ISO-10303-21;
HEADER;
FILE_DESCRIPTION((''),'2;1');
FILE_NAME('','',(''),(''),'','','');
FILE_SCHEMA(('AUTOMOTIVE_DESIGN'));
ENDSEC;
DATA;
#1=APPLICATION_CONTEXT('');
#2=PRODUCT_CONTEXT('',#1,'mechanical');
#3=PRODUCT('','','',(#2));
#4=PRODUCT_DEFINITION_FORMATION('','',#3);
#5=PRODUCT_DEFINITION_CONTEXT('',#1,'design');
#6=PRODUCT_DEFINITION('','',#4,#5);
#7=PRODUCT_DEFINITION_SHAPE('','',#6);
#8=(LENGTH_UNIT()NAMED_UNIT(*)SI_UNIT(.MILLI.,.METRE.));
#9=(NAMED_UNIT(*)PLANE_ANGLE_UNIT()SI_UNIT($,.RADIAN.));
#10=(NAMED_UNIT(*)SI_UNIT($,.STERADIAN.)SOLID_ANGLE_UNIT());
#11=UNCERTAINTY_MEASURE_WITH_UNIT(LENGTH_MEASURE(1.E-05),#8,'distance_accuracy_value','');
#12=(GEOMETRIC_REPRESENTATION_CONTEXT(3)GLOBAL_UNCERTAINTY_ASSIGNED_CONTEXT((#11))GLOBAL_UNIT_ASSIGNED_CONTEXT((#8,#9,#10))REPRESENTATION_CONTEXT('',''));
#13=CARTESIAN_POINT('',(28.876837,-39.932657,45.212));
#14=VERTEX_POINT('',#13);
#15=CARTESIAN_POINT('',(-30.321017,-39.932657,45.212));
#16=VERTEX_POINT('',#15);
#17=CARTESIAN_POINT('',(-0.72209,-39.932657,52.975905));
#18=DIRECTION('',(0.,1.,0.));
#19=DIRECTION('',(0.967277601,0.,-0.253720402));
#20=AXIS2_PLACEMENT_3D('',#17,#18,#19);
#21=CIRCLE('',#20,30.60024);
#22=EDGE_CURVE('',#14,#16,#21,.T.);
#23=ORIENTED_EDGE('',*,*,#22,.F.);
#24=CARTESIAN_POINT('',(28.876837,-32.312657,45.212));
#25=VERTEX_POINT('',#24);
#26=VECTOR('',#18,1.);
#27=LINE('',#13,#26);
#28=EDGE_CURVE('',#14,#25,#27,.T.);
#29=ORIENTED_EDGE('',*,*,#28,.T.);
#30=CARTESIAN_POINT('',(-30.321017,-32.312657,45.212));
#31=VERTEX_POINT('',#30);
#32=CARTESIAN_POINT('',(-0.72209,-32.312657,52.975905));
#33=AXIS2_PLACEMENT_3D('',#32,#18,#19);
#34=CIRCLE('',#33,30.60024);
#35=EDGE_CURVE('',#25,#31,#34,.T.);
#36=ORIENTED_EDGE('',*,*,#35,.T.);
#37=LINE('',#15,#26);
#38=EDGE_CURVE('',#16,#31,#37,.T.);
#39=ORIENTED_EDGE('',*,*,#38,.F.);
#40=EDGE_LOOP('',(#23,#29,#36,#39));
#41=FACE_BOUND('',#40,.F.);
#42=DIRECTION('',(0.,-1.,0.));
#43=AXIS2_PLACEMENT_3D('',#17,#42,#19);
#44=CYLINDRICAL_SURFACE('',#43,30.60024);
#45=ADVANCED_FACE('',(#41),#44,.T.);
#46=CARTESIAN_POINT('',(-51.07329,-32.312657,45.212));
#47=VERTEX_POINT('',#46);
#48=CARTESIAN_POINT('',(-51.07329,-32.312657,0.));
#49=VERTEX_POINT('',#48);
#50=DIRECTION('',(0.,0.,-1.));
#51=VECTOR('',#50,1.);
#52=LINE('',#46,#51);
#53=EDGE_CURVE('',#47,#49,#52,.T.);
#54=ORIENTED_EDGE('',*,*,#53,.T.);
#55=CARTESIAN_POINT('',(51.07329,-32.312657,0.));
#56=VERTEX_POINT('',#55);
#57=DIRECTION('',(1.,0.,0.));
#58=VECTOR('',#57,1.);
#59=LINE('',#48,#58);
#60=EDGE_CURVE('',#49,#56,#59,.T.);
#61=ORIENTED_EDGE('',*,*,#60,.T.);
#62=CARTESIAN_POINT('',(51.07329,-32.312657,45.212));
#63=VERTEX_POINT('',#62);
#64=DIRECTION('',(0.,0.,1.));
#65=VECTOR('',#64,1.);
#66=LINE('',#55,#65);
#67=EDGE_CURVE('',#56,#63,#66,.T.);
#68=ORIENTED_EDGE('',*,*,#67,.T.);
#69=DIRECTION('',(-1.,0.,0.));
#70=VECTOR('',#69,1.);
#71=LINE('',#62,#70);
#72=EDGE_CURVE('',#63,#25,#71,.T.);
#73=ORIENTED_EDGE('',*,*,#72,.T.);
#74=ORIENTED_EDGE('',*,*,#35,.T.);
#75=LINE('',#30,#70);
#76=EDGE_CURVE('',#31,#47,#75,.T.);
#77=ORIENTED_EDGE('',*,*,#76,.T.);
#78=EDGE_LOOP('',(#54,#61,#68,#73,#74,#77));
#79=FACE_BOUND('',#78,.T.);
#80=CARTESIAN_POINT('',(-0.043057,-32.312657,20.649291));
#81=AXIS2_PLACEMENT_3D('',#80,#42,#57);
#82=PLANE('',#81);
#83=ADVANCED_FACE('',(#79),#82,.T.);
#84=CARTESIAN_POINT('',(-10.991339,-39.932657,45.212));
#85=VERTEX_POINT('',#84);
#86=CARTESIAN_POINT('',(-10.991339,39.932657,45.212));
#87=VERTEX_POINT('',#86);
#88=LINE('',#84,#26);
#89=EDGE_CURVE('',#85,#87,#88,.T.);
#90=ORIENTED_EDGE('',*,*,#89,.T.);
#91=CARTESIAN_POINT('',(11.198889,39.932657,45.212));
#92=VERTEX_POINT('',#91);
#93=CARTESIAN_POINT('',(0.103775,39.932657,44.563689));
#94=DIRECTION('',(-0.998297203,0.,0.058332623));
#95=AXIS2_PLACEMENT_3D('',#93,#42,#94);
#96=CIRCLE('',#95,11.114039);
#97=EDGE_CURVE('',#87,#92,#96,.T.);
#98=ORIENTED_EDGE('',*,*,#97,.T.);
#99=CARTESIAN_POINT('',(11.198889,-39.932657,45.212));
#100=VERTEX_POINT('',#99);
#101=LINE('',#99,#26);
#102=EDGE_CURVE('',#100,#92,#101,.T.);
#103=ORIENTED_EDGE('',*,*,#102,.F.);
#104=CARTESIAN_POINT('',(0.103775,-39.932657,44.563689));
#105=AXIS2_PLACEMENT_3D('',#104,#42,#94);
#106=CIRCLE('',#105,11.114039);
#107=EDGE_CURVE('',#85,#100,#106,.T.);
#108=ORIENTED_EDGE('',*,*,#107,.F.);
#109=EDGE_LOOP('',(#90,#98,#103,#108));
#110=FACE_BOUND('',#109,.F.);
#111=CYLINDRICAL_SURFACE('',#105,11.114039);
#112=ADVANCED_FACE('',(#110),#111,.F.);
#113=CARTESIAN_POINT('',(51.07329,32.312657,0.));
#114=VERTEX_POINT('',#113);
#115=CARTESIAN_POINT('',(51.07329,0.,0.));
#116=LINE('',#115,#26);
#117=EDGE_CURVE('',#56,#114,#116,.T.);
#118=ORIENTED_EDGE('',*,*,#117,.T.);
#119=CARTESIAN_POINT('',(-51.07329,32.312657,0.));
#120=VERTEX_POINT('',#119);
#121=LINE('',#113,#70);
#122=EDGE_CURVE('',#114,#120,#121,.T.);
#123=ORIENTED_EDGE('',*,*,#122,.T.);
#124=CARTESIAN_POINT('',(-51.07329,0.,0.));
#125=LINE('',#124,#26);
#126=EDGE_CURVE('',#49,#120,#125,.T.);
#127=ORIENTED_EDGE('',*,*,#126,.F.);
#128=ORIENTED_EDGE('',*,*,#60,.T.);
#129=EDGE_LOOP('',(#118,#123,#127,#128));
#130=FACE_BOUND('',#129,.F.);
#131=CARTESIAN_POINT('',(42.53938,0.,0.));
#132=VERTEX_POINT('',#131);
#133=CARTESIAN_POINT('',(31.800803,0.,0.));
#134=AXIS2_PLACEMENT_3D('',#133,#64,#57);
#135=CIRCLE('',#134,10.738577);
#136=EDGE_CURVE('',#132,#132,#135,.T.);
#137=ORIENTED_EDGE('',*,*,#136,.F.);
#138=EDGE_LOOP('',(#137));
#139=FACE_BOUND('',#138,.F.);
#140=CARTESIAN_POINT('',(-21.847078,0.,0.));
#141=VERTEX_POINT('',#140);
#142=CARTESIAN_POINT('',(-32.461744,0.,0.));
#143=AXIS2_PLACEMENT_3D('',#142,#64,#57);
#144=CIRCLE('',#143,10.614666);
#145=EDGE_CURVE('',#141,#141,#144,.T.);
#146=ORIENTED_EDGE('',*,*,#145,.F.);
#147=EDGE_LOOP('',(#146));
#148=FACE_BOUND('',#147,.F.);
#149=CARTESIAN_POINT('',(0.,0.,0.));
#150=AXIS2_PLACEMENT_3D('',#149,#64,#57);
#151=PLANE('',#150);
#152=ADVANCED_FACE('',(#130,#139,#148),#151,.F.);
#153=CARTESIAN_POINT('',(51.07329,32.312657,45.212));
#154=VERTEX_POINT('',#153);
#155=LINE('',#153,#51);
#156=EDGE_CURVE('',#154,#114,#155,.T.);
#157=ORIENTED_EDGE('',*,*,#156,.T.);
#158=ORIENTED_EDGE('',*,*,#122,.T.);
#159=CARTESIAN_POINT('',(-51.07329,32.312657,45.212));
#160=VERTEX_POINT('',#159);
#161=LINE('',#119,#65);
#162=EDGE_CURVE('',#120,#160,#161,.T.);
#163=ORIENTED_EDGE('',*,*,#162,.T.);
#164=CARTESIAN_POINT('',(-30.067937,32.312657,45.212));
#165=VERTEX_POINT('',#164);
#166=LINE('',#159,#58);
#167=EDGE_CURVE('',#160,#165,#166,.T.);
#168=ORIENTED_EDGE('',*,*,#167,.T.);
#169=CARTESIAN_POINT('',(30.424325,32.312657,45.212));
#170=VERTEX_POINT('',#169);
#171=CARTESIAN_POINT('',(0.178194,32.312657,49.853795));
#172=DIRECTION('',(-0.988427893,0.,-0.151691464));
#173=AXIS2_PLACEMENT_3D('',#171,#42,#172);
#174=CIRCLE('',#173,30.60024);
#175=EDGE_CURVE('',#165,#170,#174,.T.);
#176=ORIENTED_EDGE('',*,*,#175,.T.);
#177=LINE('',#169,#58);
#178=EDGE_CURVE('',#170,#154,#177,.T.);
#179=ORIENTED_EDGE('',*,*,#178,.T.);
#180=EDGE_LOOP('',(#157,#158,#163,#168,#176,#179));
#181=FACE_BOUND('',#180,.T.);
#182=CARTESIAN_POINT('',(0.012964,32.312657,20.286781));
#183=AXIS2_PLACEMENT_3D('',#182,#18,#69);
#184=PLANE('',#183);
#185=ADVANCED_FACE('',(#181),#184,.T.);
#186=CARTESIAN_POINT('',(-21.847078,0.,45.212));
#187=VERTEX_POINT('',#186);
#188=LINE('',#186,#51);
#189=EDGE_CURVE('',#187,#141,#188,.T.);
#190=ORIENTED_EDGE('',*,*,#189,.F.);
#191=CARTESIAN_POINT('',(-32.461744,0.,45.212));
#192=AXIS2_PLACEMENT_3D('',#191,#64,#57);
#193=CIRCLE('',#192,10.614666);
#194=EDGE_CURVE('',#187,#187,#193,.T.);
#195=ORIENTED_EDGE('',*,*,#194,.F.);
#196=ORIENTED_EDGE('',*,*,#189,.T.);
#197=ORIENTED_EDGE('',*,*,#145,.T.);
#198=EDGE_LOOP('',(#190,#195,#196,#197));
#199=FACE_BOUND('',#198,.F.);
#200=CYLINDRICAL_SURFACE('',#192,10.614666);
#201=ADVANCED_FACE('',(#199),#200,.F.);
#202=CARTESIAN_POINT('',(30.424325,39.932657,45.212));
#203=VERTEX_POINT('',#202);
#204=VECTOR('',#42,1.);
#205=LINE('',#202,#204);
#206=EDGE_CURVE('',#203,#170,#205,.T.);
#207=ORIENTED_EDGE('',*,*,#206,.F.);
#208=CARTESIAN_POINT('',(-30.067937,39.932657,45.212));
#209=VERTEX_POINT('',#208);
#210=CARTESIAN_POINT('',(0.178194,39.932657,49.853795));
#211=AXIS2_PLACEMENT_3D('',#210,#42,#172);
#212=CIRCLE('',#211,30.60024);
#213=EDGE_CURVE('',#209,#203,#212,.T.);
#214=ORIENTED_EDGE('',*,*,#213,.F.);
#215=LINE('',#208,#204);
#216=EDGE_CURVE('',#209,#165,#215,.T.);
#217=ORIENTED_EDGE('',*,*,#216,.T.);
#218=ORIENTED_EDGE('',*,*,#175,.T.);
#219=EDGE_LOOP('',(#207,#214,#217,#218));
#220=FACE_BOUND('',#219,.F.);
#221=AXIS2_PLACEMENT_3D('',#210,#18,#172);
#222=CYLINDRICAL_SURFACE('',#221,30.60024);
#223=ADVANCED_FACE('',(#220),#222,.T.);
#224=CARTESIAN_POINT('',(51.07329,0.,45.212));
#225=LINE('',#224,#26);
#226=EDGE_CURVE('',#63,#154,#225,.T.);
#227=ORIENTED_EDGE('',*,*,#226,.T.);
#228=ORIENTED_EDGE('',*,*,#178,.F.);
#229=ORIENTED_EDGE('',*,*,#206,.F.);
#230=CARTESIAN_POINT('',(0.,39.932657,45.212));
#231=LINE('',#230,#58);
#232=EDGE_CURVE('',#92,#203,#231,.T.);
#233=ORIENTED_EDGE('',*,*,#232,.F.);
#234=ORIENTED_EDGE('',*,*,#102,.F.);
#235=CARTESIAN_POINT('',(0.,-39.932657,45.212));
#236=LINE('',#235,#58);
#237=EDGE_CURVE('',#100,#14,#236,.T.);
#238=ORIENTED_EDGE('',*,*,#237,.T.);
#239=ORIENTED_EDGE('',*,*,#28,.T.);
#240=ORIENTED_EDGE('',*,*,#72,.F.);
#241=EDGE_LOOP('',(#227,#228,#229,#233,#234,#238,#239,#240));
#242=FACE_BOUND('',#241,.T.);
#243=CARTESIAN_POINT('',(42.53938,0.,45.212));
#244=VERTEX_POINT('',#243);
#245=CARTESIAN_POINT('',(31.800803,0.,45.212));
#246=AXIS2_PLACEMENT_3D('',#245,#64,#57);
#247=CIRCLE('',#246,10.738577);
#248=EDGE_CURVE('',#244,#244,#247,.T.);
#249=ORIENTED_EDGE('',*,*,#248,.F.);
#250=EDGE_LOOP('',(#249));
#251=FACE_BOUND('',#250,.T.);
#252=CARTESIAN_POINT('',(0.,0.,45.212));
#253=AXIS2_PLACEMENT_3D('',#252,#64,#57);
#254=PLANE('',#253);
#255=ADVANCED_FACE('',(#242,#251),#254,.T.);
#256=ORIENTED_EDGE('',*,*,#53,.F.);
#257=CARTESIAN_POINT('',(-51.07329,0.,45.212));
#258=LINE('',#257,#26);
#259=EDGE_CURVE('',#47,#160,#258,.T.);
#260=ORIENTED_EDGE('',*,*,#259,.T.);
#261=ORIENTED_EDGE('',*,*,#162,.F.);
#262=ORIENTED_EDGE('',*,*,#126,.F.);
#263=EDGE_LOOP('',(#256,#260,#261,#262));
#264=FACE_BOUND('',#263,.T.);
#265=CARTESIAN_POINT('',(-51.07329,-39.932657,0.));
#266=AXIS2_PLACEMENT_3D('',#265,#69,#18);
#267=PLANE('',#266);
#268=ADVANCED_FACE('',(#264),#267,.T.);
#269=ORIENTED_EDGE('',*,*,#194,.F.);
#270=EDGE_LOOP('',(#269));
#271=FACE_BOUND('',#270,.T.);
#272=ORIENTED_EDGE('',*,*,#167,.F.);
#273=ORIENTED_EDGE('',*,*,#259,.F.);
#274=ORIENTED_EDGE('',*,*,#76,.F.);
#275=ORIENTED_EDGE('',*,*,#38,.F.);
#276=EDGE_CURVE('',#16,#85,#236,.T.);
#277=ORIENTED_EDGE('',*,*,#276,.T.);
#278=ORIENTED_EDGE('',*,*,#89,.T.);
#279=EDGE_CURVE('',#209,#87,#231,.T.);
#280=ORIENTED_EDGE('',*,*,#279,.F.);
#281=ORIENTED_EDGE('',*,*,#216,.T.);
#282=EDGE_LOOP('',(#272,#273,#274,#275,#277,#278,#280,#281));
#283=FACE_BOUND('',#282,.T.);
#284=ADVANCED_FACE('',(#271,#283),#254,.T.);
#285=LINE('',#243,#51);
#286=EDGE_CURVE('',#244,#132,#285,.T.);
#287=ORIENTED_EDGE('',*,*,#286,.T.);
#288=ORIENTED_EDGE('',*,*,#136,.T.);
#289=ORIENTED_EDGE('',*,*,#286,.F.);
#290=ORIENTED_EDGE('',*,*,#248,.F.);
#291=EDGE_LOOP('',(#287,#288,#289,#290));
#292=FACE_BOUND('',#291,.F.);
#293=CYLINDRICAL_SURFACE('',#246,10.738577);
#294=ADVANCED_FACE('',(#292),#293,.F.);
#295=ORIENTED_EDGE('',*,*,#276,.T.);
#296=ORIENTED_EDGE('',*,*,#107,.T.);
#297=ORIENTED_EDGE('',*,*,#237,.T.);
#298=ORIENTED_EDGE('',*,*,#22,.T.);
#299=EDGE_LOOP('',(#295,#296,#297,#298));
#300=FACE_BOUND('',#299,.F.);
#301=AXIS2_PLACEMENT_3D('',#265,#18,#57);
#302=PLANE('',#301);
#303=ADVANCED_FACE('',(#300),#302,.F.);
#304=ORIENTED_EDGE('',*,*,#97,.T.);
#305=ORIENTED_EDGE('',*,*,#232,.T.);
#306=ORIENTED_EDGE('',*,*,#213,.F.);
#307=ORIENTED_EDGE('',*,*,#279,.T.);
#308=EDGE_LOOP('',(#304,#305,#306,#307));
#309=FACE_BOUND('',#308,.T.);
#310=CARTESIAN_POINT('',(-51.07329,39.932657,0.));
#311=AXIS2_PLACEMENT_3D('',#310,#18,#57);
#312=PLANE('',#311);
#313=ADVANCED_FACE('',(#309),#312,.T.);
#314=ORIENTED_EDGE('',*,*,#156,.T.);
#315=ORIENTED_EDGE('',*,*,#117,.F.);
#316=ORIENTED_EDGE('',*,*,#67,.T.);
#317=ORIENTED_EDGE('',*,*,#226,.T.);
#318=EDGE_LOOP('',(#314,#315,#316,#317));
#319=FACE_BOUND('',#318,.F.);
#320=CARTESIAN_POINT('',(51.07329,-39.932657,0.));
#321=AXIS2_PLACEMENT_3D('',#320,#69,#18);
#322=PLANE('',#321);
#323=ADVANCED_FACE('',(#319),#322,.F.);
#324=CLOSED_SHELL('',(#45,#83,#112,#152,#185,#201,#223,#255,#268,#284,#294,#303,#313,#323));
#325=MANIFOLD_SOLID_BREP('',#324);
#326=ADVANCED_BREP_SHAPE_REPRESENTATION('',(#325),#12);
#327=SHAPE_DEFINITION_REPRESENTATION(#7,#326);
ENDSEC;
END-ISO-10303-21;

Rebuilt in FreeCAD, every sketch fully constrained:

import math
import FreeCAD as App
import Part
import Sketcher
Q = App.Units.Quantity

doc = App.newDocument("Part")
body = doc.addObject("PartDesign::Body", "Body")

# Sketch on XY plane
sketch1 = body.newObject("Sketcher::SketchObject", "Sketch")
sketch1.AttachmentSupport = (doc.getObject("XY_Plane"), [""])
sketch1.MapMode = "FlatFace"
sketch1.addGeometry(Part.LineSegment(App.Vector(-51, 40, 0), App.Vector(-51, -40, 0)), False)
sketch1.addGeometry(Part.LineSegment(App.Vector(-51, -40, 0), App.Vector(51, -40, 0)), False)
sketch1.addGeometry(Part.LineSegment(App.Vector(51, -40, 0), App.Vector(51, 40, 0)), False)
sketch1.addGeometry(Part.LineSegment(App.Vector(51, 40, 0), App.Vector(-51, 40, 0)), False)
sketch1.addConstraint(Sketcher.Constraint("Coincident", 0, 2, 1, 1))
sketch1.addConstraint(Sketcher.Constraint("Coincident", 1, 2, 2, 1))
sketch1.addConstraint(Sketcher.Constraint("Coincident", 2, 2, 3, 1))
sketch1.addConstraint(Sketcher.Constraint("Coincident", 3, 2, 0, 1))
sketch1.addConstraint(Sketcher.Constraint("Vertical", 0))
sketch1.addConstraint(Sketcher.Constraint("Horizontal", 1))
sketch1.addConstraint(Sketcher.Constraint("Vertical", 2))
sketch1.addConstraint(Sketcher.Constraint("Horizontal", 3))
sketch1.addConstraint(Sketcher.Constraint("Symmetric", 0, 2, 2, 2, -1, 1))
sketch1.addConstraint(Sketcher.Constraint("DistanceX", 1, 1, 1, 2, Q("102.14658 mm")))
sketch1.addConstraint(Sketcher.Constraint("DistanceY", 0, 2, 0, 1, Q("79.865314 mm")))
pad1 = body.newObject("PartDesign::Pad", "Pad")
pad1.Profile = sketch1
pad1.Length = Q("1.78 in")

# Sketch on XZ plane
sketch2 = body.newObject("Sketcher::SketchObject", "Sketch001")
sketch2.AttachmentSupport = (doc.getObject("XZ_Plane"), [""])
sketch2.MapMode = "FlatFace"
sketch2.AttachmentOffset = App.Placement(App.Vector(0, 0, -39.932657), App.Rotation())
sketch2.addGeometry(Part.ArcOfCircle(Part.Circle(App.Vector(0, 50, 0), App.Vector(0, 0, 1), 31), math.radians(-171), math.radians(-9)), False)
sketch2.addGeometry(Part.LineSegment(App.Vector(30, 45, 0), App.Vector(51, 45, 0)), False)
sketch2.addGeometry(Part.LineSegment(App.Vector(51, 45, 0), App.Vector(51, 0, 0)), False)
sketch2.addGeometry(Part.LineSegment(App.Vector(51, 0, 0), App.Vector(-51, 0, 0)), False)
sketch2.addGeometry(Part.LineSegment(App.Vector(-51, 0, 0), App.Vector(-51, 45, 0)), False)
sketch2.addGeometry(Part.LineSegment(App.Vector(-51, 45, 0), App.Vector(-30, 45, 0)), False)
sketch2.addConstraint(Sketcher.Constraint("Coincident", 0, 2, 1, 1))
sketch2.addConstraint(Sketcher.Constraint("Coincident", 1, 2, 2, 1))
sketch2.addConstraint(Sketcher.Constraint("Coincident", 2, 2, 3, 1))
sketch2.addConstraint(Sketcher.Constraint("Coincident", 3, 2, 4, 1))
sketch2.addConstraint(Sketcher.Constraint("Coincident", 4, 2, 5, 1))
sketch2.addConstraint(Sketcher.Constraint("Coincident", 5, 2, 0, 1))
sketch2.addConstraint(Sketcher.Constraint("Horizontal", 1))
sketch2.addConstraint(Sketcher.Constraint("Vertical", 2))
sketch2.addConstraint(Sketcher.Constraint("Horizontal", 3))
sketch2.addConstraint(Sketcher.Constraint("Vertical", 4))
sketch2.addConstraint(Sketcher.Constraint("Horizontal", 5))
sketch2.addConstraint(Sketcher.Constraint("Symmetric", 2, 2, 3, 2, -1, 1))
sketch2.addConstraint(Sketcher.Constraint("Horizontal", 1, 2, 4, 2))
sketch2.addConstraint(Sketcher.Constraint("DistanceY", 2, 2, 2, 1, Q("1.78 in")))
sketch2.addConstraint(Sketcher.Constraint("Radius", 0, Q("30.60024 mm")))
sketch2.addConstraint(Sketcher.Constraint("DistanceX", 3, 2, 3, 1, Q("102.14658 mm")))
sketch2.addConstraint(Sketcher.Constraint("DistanceX", 1, 1, 1, 2, Q("20.648965 mm")))
sketch2.addConstraint(Sketcher.Constraint("DistanceX", 5, 1, 5, 2, Q("21.005353 mm")))
pocket1 = body.newObject("PartDesign::Pocket", "Pocket")
pocket1.Profile = sketch2
pocket1.Length = Q("0.3 in")
pocket1.Reversed = True

# Sketch on XZ plane
sketch3 = body.newObject("Sketcher::SketchObject", "Sketch002")
sketch3.AttachmentSupport = (doc.getObject("XZ_Plane"), [""])
sketch3.MapMode = "FlatFace"
sketch3.AttachmentOffset = App.Placement(App.Vector(0, 0, 39.932657), App.Rotation())
sketch3.addGeometry(Part.ArcOfCircle(Part.Circle(App.Vector(-1, 53, 0), App.Vector(0, 0, 1), 31), math.radians(-165), math.radians(-15)), False)
sketch3.addGeometry(Part.LineSegment(App.Vector(-30, 45, 0), App.Vector(-51, 45, 0)), False)
sketch3.addGeometry(Part.LineSegment(App.Vector(-51, 45, 0), App.Vector(-51, 0, 0)), False)
sketch3.addGeometry(Part.LineSegment(App.Vector(-51, 0, 0), App.Vector(51, 0, 0)), False)
sketch3.addGeometry(Part.LineSegment(App.Vector(51, 0, 0), App.Vector(51, 45, 0)), False)
sketch3.addGeometry(Part.LineSegment(App.Vector(51, 45, 0), App.Vector(29, 45, 0)), False)
sketch3.addConstraint(Sketcher.Constraint("Coincident", 0, 1, 1, 1))
sketch3.addConstraint(Sketcher.Constraint("Coincident", 1, 2, 2, 1))
sketch3.addConstraint(Sketcher.Constraint("Coincident", 2, 2, 3, 1))
sketch3.addConstraint(Sketcher.Constraint("Coincident", 3, 2, 4, 1))
sketch3.addConstraint(Sketcher.Constraint("Coincident", 4, 2, 5, 1))
sketch3.addConstraint(Sketcher.Constraint("Coincident", 5, 2, 0, 2))
sketch3.addConstraint(Sketcher.Constraint("Horizontal", 1))
sketch3.addConstraint(Sketcher.Constraint("Vertical", 2))
sketch3.addConstraint(Sketcher.Constraint("Horizontal", 3))
sketch3.addConstraint(Sketcher.Constraint("Vertical", 4))
sketch3.addConstraint(Sketcher.Constraint("Horizontal", 5))
sketch3.addConstraint(Sketcher.Constraint("Symmetric", 2, 2, 3, 2, -1, 1))
sketch3.addConstraint(Sketcher.Constraint("Horizontal", 1, 2, 4, 2))
sketch3.addConstraint(Sketcher.Constraint("DistanceY", 2, 2, 2, 1, Q("1.78 in")))
sketch3.addConstraint(Sketcher.Constraint("Radius", 0, Q("30.60024 mm")))
sketch3.addConstraint(Sketcher.Constraint("DistanceX", 3, 1, 3, 2, Q("102.14658 mm")))
sketch3.addConstraint(Sketcher.Constraint("DistanceX", 1, 2, 0, 3, Q("50.3512 mm")))
sketch3.addConstraint(Sketcher.Constraint("DistanceX", 1, 2, 1, 1, Q("20.752273 mm")))
pocket2 = body.newObject("PartDesign::Pocket", "Pocket001")
pocket2.Profile = sketch3
pocket2.Length = Q("0.3 in")

# Sketch on XZ plane
sketch4 = body.newObject("Sketcher::SketchObject", "Sketch003")
sketch4.AttachmentSupport = (doc.getObject("XZ_Plane"), [""])
sketch4.MapMode = "FlatFace"
sketch4.AttachmentOffset = App.Placement(App.Vector(0, 0, 39.932657), App.Rotation())
sketch4.addGeometry(Part.LineSegment(App.Vector(11, 45, 0), App.Vector(-11, 45, 0)), False)
sketch4.addGeometry(Part.ArcOfCircle(Part.Circle(App.Vector(0, 45, 0), App.Vector(0, 0, 1), 11), math.radians(177), math.radians(363)), False)
sketch4.addConstraint(Sketcher.Constraint("Coincident", 0, 1, 1, 2))
sketch4.addConstraint(Sketcher.Constraint("Coincident", 1, 1, 0, 2))
sketch4.addConstraint(Sketcher.Constraint("Horizontal", 0))
sketch4.addConstraint(Sketcher.Constraint("DistanceY", -1, 1, 0, 1, Q("1.78 in")))
sketch4.addConstraint(Sketcher.Constraint("Radius", 1, Q("11.114039 mm")))
sketch4.addConstraint(Sketcher.Constraint("DistanceX", 0, 2, 0, 1, Q("22.190228 mm")))
sketch4.addConstraint(Sketcher.Constraint("DistanceX", -1, 1, 0, 1, Q("11.198889 mm")))
pocket3 = body.newObject("PartDesign::Pocket", "Pocket002")
pocket3.Profile = sketch4
pocket3.Length = Q("9.48 in")

# Sketch on XY plane
sketch5 = body.newObject("Sketcher::SketchObject", "Sketch004")
sketch5.AttachmentSupport = (doc.getObject("XY_Plane"), [""])
sketch5.MapMode = "FlatFace"
sketch5.AttachmentOffset = App.Placement(App.Vector(0, 0, 1.78 * 25.4), App.Rotation())
sketch5.addGeometry(Part.Circle(App.Vector(-32, 0, 0), App.Vector(0, 0, 1), 11), False)
sketch5.addGeometry(Part.Circle(App.Vector(32, 0, 0), App.Vector(0, 0, 1), 11), False)
sketch5.addConstraint(Sketcher.Constraint("PointOnObject", 0, 3, -1))
sketch5.addConstraint(Sketcher.Constraint("PointOnObject", 1, 3, -1))
sketch5.addConstraint(Sketcher.Constraint("Diameter", 0, Q("21.229332 mm")))
sketch5.addConstraint(Sketcher.Constraint("DistanceX", -1, 1, 1, 3, Q("1.2520001 in")))
sketch5.addConstraint(Sketcher.Constraint("Diameter", 1, Q("21.477154 mm")))
sketch5.addConstraint(Sketcher.Constraint("DistanceX", 0, 3, -1, 1, Q("32.461744 mm")))
pocket4 = body.newObject("PartDesign::Pocket", "Pocket003")
pocket4.Profile = sketch5
pocket4.Length = Q("3.29 in")

doc.recompute()
